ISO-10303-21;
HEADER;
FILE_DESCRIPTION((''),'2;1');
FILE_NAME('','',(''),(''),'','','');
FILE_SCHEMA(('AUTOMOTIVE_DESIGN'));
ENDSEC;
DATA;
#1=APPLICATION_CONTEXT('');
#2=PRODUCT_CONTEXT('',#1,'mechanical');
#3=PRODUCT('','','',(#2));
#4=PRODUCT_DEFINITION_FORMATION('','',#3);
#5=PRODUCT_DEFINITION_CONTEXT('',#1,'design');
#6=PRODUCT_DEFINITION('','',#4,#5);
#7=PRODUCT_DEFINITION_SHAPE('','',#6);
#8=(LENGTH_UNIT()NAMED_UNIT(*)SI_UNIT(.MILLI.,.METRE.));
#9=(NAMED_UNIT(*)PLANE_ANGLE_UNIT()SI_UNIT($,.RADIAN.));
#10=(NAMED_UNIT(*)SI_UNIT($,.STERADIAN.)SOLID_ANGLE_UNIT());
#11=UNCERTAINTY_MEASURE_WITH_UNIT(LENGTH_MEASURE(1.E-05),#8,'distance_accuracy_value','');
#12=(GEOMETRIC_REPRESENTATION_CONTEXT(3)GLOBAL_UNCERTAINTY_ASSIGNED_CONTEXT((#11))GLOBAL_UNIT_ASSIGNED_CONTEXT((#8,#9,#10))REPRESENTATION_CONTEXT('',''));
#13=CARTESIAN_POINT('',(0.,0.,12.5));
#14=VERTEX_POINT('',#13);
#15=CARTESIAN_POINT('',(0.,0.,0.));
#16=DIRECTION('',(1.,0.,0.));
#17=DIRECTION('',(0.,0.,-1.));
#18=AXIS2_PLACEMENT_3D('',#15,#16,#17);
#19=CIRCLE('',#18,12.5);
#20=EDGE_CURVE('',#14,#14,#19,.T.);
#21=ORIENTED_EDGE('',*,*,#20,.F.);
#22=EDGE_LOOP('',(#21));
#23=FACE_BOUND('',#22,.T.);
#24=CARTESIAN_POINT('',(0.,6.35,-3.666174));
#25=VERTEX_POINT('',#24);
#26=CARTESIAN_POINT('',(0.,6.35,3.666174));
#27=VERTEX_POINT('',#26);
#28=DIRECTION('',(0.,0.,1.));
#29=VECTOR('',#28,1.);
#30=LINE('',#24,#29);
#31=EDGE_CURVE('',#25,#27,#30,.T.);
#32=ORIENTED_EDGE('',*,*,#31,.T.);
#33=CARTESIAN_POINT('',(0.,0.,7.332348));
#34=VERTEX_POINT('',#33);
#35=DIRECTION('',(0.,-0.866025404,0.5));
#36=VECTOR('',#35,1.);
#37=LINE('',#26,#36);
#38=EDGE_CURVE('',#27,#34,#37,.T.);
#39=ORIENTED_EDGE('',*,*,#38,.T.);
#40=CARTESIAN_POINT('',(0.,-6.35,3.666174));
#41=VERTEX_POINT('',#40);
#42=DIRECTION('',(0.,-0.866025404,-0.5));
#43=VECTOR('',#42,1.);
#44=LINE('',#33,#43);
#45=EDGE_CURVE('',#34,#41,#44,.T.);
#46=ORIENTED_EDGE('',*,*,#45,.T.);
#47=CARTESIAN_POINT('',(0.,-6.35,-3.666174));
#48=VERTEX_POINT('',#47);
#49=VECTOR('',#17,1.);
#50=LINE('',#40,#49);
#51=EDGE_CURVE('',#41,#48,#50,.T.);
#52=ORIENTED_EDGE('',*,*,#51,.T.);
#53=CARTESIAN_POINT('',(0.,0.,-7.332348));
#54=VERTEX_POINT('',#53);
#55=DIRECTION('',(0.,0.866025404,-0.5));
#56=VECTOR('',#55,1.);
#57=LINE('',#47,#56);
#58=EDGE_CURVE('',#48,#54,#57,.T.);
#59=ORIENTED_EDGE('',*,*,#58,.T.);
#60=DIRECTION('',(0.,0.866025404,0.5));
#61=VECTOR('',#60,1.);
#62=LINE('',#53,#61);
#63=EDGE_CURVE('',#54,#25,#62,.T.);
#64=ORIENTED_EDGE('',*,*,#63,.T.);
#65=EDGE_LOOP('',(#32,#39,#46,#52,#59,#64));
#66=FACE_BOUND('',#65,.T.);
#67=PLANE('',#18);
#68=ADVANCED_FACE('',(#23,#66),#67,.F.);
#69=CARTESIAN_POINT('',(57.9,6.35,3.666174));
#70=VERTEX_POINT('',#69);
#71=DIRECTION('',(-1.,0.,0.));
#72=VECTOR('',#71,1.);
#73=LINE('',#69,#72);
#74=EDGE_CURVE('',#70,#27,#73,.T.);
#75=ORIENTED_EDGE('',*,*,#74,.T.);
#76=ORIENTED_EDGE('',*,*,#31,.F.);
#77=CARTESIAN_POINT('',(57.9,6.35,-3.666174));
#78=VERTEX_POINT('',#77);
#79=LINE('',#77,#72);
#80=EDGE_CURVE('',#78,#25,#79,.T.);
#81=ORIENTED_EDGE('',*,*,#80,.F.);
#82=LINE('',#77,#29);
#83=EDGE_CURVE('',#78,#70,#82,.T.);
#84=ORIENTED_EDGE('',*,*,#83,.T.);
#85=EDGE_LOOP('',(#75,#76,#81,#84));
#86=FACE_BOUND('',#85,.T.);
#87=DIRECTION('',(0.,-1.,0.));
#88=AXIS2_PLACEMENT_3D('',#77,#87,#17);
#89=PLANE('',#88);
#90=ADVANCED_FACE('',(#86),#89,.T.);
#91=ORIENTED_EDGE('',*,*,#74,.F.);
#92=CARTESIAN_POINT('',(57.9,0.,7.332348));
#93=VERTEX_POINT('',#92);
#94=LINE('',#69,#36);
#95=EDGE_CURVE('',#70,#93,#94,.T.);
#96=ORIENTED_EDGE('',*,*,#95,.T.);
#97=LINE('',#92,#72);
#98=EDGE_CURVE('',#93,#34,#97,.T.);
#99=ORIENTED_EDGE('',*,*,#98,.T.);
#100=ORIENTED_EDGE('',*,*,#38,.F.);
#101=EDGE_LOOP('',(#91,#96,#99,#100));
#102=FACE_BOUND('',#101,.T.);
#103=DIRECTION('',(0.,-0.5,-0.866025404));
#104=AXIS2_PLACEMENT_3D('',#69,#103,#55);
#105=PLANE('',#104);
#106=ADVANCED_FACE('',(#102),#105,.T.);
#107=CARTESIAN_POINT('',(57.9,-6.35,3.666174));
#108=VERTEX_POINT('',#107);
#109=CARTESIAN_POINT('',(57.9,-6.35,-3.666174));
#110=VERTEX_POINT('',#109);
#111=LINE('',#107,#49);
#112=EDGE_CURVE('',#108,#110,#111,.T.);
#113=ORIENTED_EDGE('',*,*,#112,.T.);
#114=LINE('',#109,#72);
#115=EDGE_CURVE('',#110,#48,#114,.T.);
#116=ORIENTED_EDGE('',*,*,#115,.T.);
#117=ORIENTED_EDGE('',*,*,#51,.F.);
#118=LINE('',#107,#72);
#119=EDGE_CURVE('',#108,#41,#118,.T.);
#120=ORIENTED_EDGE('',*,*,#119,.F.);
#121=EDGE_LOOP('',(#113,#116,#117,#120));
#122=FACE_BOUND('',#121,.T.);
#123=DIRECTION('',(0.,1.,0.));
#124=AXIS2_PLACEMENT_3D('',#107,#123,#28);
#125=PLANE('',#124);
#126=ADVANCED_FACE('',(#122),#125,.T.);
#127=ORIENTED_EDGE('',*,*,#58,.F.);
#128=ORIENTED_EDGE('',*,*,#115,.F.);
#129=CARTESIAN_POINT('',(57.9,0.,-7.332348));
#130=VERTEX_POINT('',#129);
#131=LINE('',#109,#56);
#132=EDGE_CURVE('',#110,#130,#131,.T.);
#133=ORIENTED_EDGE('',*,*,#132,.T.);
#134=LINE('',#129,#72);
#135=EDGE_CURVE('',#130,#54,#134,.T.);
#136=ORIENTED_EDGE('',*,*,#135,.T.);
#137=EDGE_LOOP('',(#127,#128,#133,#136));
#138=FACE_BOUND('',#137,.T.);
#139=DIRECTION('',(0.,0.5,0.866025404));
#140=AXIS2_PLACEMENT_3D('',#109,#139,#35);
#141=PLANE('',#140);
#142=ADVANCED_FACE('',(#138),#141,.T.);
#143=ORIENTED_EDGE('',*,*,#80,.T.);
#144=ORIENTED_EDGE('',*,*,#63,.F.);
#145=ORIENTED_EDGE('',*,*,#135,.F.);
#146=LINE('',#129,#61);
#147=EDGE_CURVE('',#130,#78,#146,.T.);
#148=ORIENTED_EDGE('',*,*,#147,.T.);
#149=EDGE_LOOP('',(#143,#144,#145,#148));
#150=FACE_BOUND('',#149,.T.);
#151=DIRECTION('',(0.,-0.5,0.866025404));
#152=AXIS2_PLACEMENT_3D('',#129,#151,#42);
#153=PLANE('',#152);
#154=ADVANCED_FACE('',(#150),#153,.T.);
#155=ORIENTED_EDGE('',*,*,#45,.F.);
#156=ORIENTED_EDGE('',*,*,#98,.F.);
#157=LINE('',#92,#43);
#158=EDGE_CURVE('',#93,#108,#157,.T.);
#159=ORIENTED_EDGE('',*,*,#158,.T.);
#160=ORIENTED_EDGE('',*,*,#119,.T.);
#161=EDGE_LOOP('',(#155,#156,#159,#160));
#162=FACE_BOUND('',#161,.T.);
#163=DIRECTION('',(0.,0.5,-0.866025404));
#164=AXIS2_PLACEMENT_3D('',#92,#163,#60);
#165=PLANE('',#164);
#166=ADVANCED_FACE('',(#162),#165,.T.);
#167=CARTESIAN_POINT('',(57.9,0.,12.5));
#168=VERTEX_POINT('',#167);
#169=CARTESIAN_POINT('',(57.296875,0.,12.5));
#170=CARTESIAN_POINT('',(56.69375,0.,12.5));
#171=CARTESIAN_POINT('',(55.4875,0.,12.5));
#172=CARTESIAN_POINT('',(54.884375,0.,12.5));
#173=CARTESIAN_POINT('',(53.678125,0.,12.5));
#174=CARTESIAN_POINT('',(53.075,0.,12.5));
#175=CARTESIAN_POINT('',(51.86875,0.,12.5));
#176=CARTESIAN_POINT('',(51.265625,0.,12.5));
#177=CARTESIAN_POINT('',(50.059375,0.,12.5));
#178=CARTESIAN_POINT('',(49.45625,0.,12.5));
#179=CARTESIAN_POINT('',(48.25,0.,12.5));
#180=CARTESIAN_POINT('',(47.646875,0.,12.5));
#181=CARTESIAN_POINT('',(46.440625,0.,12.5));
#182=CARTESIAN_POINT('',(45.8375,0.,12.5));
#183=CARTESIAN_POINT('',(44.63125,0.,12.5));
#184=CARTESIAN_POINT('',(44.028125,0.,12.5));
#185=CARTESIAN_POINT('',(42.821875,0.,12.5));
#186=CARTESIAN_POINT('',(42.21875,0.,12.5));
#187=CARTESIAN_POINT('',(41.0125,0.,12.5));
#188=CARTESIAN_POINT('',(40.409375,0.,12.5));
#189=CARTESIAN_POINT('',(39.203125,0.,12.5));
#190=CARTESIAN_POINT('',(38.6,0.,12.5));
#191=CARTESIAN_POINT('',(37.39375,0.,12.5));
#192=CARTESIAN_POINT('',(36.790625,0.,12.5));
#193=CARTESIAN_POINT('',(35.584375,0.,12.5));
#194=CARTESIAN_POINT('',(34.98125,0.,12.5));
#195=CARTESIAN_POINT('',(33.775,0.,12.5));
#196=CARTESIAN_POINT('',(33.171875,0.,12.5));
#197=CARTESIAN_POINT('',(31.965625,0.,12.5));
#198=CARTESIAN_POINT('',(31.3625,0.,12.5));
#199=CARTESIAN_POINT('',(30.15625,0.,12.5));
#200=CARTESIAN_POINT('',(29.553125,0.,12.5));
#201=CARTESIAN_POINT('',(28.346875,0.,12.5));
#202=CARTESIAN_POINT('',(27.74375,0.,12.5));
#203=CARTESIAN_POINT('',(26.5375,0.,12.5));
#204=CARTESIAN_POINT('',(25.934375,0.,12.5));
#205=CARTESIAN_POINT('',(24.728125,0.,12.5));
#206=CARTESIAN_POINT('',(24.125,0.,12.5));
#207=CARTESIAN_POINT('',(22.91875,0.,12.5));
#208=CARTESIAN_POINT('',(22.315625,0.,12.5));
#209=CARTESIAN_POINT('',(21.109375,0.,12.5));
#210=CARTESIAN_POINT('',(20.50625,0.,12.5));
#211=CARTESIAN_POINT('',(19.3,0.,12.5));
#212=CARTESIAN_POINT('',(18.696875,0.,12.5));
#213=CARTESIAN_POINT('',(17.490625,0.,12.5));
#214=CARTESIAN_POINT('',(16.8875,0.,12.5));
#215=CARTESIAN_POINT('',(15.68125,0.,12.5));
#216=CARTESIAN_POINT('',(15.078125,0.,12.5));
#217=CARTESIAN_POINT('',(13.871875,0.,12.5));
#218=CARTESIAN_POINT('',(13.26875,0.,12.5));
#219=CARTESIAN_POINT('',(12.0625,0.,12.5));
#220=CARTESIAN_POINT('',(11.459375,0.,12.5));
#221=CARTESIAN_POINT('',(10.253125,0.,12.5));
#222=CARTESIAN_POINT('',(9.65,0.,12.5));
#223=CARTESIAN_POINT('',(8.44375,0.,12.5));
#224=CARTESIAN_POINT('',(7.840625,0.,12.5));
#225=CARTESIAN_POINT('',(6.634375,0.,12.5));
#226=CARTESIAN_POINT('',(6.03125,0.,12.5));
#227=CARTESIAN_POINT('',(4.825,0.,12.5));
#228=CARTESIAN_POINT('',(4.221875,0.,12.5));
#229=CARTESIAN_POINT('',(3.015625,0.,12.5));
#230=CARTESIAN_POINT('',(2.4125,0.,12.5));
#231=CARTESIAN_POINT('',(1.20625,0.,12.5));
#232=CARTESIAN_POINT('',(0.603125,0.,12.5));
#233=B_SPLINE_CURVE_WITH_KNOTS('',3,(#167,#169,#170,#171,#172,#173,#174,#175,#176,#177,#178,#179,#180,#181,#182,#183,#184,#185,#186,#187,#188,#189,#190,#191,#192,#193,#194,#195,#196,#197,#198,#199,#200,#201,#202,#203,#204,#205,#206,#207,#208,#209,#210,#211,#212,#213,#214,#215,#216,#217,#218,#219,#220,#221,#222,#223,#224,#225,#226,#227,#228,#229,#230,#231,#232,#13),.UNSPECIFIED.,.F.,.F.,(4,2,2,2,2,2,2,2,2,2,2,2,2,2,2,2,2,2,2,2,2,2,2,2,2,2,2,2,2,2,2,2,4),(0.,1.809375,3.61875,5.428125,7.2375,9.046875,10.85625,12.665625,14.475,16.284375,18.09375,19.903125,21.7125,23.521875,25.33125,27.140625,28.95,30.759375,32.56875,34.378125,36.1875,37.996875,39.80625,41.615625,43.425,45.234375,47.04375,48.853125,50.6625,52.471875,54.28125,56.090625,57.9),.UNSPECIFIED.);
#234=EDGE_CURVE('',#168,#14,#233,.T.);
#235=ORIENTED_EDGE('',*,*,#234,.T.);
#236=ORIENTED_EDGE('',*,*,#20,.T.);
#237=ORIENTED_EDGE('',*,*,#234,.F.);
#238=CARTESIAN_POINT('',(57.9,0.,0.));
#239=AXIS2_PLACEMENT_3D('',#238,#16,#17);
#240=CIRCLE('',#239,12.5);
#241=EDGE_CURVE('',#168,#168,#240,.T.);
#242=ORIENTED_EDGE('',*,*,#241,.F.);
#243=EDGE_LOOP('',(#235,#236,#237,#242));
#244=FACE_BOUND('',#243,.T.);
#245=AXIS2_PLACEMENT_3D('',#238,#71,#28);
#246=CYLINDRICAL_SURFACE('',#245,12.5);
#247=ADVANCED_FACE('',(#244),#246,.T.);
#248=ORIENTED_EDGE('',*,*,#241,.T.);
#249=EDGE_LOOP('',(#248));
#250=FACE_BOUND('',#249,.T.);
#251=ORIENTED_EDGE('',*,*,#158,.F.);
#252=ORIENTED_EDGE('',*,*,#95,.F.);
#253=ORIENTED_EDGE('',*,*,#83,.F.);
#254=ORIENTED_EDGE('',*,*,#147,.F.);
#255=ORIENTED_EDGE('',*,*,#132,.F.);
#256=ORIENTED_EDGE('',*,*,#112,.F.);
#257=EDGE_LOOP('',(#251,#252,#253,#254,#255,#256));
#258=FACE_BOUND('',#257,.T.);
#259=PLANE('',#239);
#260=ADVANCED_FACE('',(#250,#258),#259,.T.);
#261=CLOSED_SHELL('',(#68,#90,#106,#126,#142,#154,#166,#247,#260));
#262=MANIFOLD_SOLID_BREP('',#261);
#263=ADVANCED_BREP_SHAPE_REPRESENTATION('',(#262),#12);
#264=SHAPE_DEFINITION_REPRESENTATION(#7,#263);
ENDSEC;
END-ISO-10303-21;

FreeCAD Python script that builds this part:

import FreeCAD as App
import Part
import Sketcher
Q = App.Units.Quantity


def add_polygon(sketch, points):
    """Adds a closed chain of lines whose ends are joined by coincident constraints."""
    first, n = sketch.GeometryCount, len(points)
    for a, b in zip(points, points[1:] + points[:1]):
        sketch.addGeometry(Part.LineSegment(App.Vector(*a, 0), App.Vector(*b, 0)), False)
    for i in range(n):
        sketch.addConstraint(Sketcher.Constraint("Coincident", first + i, 2, first + (i + 1) % n, 1))

doc = App.newDocument("Part")
body = doc.addObject("PartDesign::Body", "Body")

# Sketch on YZ plane
sketch1 = body.newObject("Sketcher::SketchObject", "Sketch")
sketch1.AttachmentSupport = (doc.getObject("YZ_Plane"), [""])
sketch1.MapMode = "FlatFace"
sketch1.addGeometry(Part.Circle(App.Vector(0, 0, 0), App.Vector(0, 0, 1), 12.5), False)  # 0
add_polygon(sketch1, [(6.35, -3.666174), (0, -7.332348), (-6.35, -3.666174), (-6.35, 3.666174), (0, 7.332348), (6.35, 3.666174)])  # lines 1-6
sketch1.addConstraint([
    Sketcher.Constraint("Vertical", 3),
    Sketcher.Constraint("Vertical", 6),
    Sketcher.Constraint("Coincident", 0, 3, -1, 1),
    Sketcher.Constraint("Symmetric", 1, 2, 4, 2, -1, 1),
    Sketcher.Constraint("Symmetric", 2, 2, 5, 2, -1, 1),
    Sketcher.Constraint("PointOnObject", 1, 2, -2),
    Sketcher.Constraint("Parallel", 1, 4),
    Sketcher.Constraint("Horizontal", 3, 2, 5, 2),
    Sketcher.Constraint("Diameter", 0, 25.0),
    Sketcher.Constraint("Angle", 1, Q("-150 deg")),
    Sketcher.Constraint("DistanceX", 3, 2, 5, 2, 12.7),
    Sketcher.Constraint("DistanceY", 3, 1, 3, 2, 7.332348),
])
pad1 = body.newObject("PartDesign::Pad", "Pad")
pad1.Profile = sketch1
pad1.Length = 57.9

doc.recompute()
